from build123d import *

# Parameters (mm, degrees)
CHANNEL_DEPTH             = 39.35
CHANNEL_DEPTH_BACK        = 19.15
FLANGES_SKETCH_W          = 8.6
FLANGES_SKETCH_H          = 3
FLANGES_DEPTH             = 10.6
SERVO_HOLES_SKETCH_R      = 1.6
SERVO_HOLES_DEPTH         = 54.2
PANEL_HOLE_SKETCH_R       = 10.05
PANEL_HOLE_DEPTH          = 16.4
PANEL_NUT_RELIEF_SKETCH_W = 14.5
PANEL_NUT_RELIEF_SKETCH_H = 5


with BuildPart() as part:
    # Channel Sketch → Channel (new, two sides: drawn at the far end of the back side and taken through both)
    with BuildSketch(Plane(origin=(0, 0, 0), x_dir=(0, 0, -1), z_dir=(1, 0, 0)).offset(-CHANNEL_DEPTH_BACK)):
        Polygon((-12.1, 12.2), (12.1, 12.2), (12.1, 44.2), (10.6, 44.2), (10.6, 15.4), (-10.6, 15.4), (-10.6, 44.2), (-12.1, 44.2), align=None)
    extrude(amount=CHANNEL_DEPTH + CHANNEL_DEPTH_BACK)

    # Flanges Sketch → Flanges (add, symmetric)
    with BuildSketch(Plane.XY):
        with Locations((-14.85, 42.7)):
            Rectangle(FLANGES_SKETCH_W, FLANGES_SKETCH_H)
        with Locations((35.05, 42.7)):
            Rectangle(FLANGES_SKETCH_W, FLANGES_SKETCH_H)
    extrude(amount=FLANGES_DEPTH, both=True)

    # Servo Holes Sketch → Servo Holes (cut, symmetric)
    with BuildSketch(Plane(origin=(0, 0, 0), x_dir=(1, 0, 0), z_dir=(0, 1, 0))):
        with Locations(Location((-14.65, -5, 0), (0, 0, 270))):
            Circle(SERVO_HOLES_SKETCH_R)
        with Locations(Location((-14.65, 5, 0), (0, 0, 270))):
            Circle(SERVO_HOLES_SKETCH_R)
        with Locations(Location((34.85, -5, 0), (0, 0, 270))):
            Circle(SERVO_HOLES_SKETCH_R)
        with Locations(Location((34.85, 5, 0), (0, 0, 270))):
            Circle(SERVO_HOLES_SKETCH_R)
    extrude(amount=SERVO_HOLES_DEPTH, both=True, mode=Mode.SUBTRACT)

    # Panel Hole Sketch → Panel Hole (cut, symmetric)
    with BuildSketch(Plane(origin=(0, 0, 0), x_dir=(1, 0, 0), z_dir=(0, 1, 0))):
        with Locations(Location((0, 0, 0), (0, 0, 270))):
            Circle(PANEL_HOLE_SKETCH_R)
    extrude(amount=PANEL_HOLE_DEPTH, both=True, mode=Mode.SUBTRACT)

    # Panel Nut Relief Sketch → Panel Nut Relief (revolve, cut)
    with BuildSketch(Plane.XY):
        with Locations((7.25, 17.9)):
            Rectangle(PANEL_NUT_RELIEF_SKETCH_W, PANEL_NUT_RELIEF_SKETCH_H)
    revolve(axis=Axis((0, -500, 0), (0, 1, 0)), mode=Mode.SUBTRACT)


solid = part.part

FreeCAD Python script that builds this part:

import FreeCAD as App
import Part
import Sketcher
from FreeCAD import Vector
Q = App.Units.Quantity

doc = App.newDocument("Part")
body = doc.addObject("PartDesign::Body", "Body")

# Sketch on YZ plane
sketch1 = body.newObject("Sketcher::SketchObject", "Sketch")
sketch1.AttachmentSupport = (doc.getObject("YZ_Plane"), [""])
sketch1.MapMode = "FlatFace"
sketch1.addGeometry([
    Part.LineSegment(Vector(12.2, 12.1, 0), Vector(12.2, -12.1, 0)),  # 0
    Part.LineSegment(Vector(12.2, -12.1, 0), Vector(44.2, -12.1, 0)),  # 1
    Part.LineSegment(Vector(44.2, -12.1, 0), Vector(44.2, -10.6, 0)),  # 2
    Part.LineSegment(Vector(44.2, -10.6, 0), Vector(15.4, -10.6, 0)),  # 3
    Part.LineSegment(Vector(15.4, -10.6, 0), Vector(15.4, 10.6, 0)),  # 4
    Part.LineSegment(Vector(15.4, 10.6, 0), Vector(44.2, 10.6, 0)),  # 5
    Part.LineSegment(Vector(44.2, 10.6, 0), Vector(44.2, 12.1, 0)),  # 6
    Part.LineSegment(Vector(44.2, 12.1, 0), Vector(12.2, 12.1, 0)),  # 7
], False)
sketch1.addConstraint([
    Sketcher.Constraint("Coincident", 0, 2, 1, 1),
    Sketcher.Constraint("Coincident", 1, 2, 2, 1),
    Sketcher.Constraint("Coincident", 2, 2, 3, 1),
    Sketcher.Constraint("Coincident", 3, 2, 4, 1),
    Sketcher.Constraint("Coincident", 4, 2, 5, 1),
    Sketcher.Constraint("Coincident", 5, 2, 6, 1),
    Sketcher.Constraint("Coincident", 6, 2, 7, 1),
    Sketcher.Constraint("Coincident", 7, 2, 0, 1),
    Sketcher.Constraint("Vertical", 0),
    Sketcher.Constraint("Horizontal", 1),
    Sketcher.Constraint("Vertical", 2),
    Sketcher.Constraint("Horizontal", 3),
    Sketcher.Constraint("Vertical", 4),
    Sketcher.Constraint("Horizontal", 5),
    Sketcher.Constraint("Vertical", 6),
    Sketcher.Constraint("Horizontal", 7),
    Sketcher.Constraint("Symmetric", 2, 2, 5, 2, -1),
    Sketcher.Constraint("Equal", 2, 6),
    Sketcher.Constraint("DistanceX", 1, 1, 1, 2, Q("32 mm")),
    Sketcher.Constraint("DistanceX", 3, 2, 3, 1, Q("28.8 mm")),
    Sketcher.Constraint("DistanceY", 0, 2, 0, 1, Q("24.2 mm")),
    Sketcher.Constraint("DistanceY", 2, 1, 2, 2, Q("1.5 mm")),
    Sketcher.Constraint("DistanceX", -1, 1, 0, 2, Q("12.2 mm")),
])
pad1 = body.newObject("PartDesign::Pad", "Pad")
pad1.Profile = sketch1
pad1.Type = "TwoLengths"
pad1.Length = 39.35
pad1.Length2 = 19.15

# Sketch on XY plane
sketch2 = body.newObject("Sketcher::SketchObject", "Sketch001")
sketch2.AttachmentSupport = (doc.getObject("XY_Plane"), [""])
sketch2.MapMode = "FlatFace"
sketch2.addGeometry([
    Part.LineSegment(Vector(-19.1, 44.2, 0), Vector(-19.1, 41.2, 0)),  # 0
    Part.LineSegment(Vector(-19.1, 41.2, 0), Vector(-10.6, 41.2, 0)),  # 1
    Part.LineSegment(Vector(-10.6, 41.2, 0), Vector(-10.6, 44.2, 0)),  # 2
    Part.LineSegment(Vector(-10.6, 44.2, 0), Vector(-19.1, 44.2, 0)),  # 3
    Part.LineSegment(Vector(30.8, 44.2, 0), Vector(30.8, 41.2, 0)),  # 4
    Part.LineSegment(Vector(30.8, 41.2, 0), Vector(39.4, 41.2, 0)),  # 5
    Part.LineSegment(Vector(39.4, 41.2, 0), Vector(39.4, 44.2, 0)),  # 6
    Part.LineSegment(Vector(39.4, 44.2, 0), Vector(30.8, 44.2, 0)),  # 7
], False)
sketch2.addConstraint([
    Sketcher.Constraint("Coincident", 0, 2, 1, 1),
    Sketcher.Constraint("Coincident", 1, 2, 2, 1),
    Sketcher.Constraint("Coincident", 2, 2, 3, 1),
    Sketcher.Constraint("Coincident", 3, 2, 0, 1),
    Sketcher.Constraint("Coincident", 4, 2, 5, 1),
    Sketcher.Constraint("Coincident", 5, 2, 6, 1),
    Sketcher.Constraint("Coincident", 6, 2, 7, 1),
    Sketcher.Constraint("Coincident", 7, 2, 4, 1),
    Sketcher.Constraint("Vertical", 0),
    Sketcher.Constraint("Horizontal", 1),
    Sketcher.Constraint("Vertical", 2),
    Sketcher.Constraint("Horizontal", 3),
    Sketcher.Constraint("Vertical", 4),
    Sketcher.Constraint("Horizontal", 5),
    Sketcher.Constraint("Vertical", 6),
    Sketcher.Constraint("Horizontal", 7),
    Sketcher.Constraint("Horizontal", 1, 2, 4, 2),
    Sketcher.Constraint("Horizontal", 3, 2, 6, 2),
    Sketcher.Constraint("Equal", 3, 5),
    Sketcher.Constraint("DistanceY", 0, 2, 0, 1, Q("3 mm")),
    Sketcher.Constraint("DistanceX", 1, 1, 1, 2, Q("8.6 mm")),
    Sketcher.Constraint("DistanceY", -1, 1, 0, 2, Q("41.2 mm")),
    Sketcher.Constraint("DistanceX", 1, 2, 4, 2, Q("41.3 mm")),
    Sketcher.Constraint("DistanceX", 0, 2, -1, 1, Q("19.15 mm")),
])
pad2 = body.newObject("PartDesign::Pad", "Pad001")
pad2.Profile = sketch2
pad2.Length = 21.2
pad2.Midplane = True

# Sketch on XZ plane
sketch3 = body.newObject("Sketcher::SketchObject", "Sketch002")
sketch3.AttachmentSupport = (doc.getObject("XZ_Plane"), [""])
sketch3.MapMode = "FlatFace"
sketch3.addGeometry([
    Part.Circle(Vector(-14.7, 5, 0), Vector(0, 0, 1), 1.6),
    Part.Circle(Vector(-14.7, -5, 0), Vector(0, 0, 1), 1.6),
    Part.Circle(Vector(34.9, 5, 0), Vector(0, 0, 1), 1.6),
    Part.Circle(Vector(34.9, -5, 0), Vector(0, 0, 1), 1.6),
], False)
sketch3.addConstraint([
    Sketcher.Constraint("Equal", 0, 1),
    Sketcher.Constraint("Equal", 1, 2),
    Sketcher.Constraint("Equal", 2, 3),
    Sketcher.Constraint("Symmetric", 0, 3, 1, 3, -1),
    Sketcher.Constraint("Symmetric", 2, 3, 3, 3, -1),
    Sketcher.Constraint("Horizontal", 0, 3, 2, 3),
    Sketcher.Constraint("Diameter", 0, Q("3.2 mm")),
    Sketcher.Constraint("DistanceY", -1, 1, 0, 3, Q("5 mm")),
    Sketcher.Constraint("DistanceX", 0, 3, 2, 3, Q("49.5 mm")),
    Sketcher.Constraint("DistanceX", 0, 3, -1, 1, Q("14.65 mm")),
])
pocket1 = body.newObject("PartDesign::Pocket", "Pocket")
pocket1.Profile = sketch3
pocket1.Length = 108.4
pocket1.Midplane = True

# Sketch on XZ plane
sketch4 = body.newObject("Sketcher::SketchObject", "Sketch003")
sketch4.AttachmentSupport = (doc.getObject("XZ_Plane"), [""])
sketch4.MapMode = "FlatFace"
sketch4.addGeometry(Part.Circle(Vector(0, 0, 0), Vector(0, 0, 1), 10), False)
sketch4.addConstraint([
    Sketcher.Constraint("Coincident", 0, 3, -1, 1),
    Sketcher.Constraint("Diameter", 0, Q("20.1 mm")),
])
pocket2 = body.newObject("PartDesign::Pocket", "Pocket001")
pocket2.Profile = sketch4
pocket2.Length = 32.8
pocket2.Midplane = True

# Sketch on XY plane
sketch5 = body.newObject("Sketcher::SketchObject", "Sketch004")
sketch5.AttachmentSupport = (doc.getObject("XY_Plane"), [""])
sketch5.MapMode = "FlatFace"
sketch5.addGeometry([
    Part.LineSegment(Vector(0, 20.4, 0), Vector(0, 15.4, 0)),
    Part.LineSegment(Vector(0, 15.4, 0), Vector(14.5, 15.4, 0)),
    Part.LineSegment(Vector(14.5, 15.4, 0), Vector(14.5, 20.4, 0)),
    Part.LineSegment(Vector(14.5, 20.4, 0), Vector(0, 20.4, 0)),
], False)
sketch5.addConstraint([
    Sketcher.Constraint("Coincident", 0, 2, 1, 1),
    Sketcher.Constraint("Coincident", 1, 2, 2, 1),
    Sketcher.Constraint("Coincident", 2, 2, 3, 1),
    Sketcher.Constraint("Coincident", 3, 2, 0, 1),
    Sketcher.Constraint("Vertical", 0),
    Sketcher.Constraint("Horizontal", 1),
    Sketcher.Constraint("Vertical", 2),
    Sketcher.Constraint("Horizontal", 3),
    Sketcher.Constraint("PointOnObject", 0, 2, -2),
    Sketcher.Constraint("DistanceY", 0, 2, 0, 1, Q("5 mm")),
    Sketcher.Constraint("DistanceX", 1, 1, 1, 2, Q("14.5 mm")),
    Sketcher.Constraint("DistanceY", -1, 1, 0, 2, Q("15.4 mm")),
])
groove = body.newObject("PartDesign::Groove", "Groove")
groove.Profile = sketch5
groove.ReferenceAxis = (sketch5, ["V_Axis"])
groove.Angle = 360

doc.recompute()
